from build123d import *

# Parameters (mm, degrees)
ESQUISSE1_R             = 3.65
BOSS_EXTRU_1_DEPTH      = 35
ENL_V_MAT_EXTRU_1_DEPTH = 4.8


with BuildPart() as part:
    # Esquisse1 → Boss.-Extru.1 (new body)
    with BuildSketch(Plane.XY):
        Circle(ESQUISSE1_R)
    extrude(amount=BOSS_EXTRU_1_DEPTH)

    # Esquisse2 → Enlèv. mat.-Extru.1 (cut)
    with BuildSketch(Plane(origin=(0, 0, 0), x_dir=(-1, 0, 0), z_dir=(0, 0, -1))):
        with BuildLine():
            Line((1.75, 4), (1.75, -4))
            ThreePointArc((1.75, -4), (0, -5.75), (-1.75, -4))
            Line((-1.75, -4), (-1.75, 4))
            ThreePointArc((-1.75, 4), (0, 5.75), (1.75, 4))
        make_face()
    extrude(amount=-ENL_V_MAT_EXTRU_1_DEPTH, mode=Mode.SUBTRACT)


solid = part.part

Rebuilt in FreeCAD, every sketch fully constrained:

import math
import FreeCAD as App
import Part
import Sketcher
from FreeCAD import Vector

doc = App.newDocument("Part")
body = doc.addObject("PartDesign::Body", "Body")

# Sketch on XY plane
sketch1 = body.newObject("Sketcher::SketchObject", "Sketch")
sketch1.AttachmentSupport = (doc.getObject("XY_Plane"), [""])
sketch1.MapMode = "FlatFace"
sketch1.addGeometry(Part.Circle(Vector(0, 0, 0), Vector(0, 0, 1), 3.6), False)
sketch1.addConstraint([
    Sketcher.Constraint("Coincident", 0, 3, -1, 1),
    Sketcher.Constraint("Diameter", 0, 7.3),
])
pad1 = body.newObject("PartDesign::Pad", "Pad")
pad1.Profile = sketch1
pad1.Length = 35

# Sketch on XY plane
sketch2 = body.newObject("Sketcher::SketchObject", "Sketch001")
sketch2.AttachmentSupport = (doc.getObject("XY_Plane"), [""])
sketch2.MapMode = "FlatFace"
sketch2.addGeometry([
    Part.LineSegment(Vector(-1.8, -4, 0), Vector(-1.8, 4, 0)),
    Part.ArcOfCircle(Part.Circle(Vector(0, 4, 0), Vector(0, 0, 1), 1.8), math.radians(0), math.radians(180)),
    Part.LineSegment(Vector(1.8, 4, 0), Vector(1.8, -4, 0)),
    Part.ArcOfCircle(Part.Circle(Vector(0, -4, 0), Vector(0, 0, 1), 1.8), math.radians(180), math.radians(360)),
], False)
sketch2.addConstraint([
    Sketcher.Constraint("Tangent", 0, 2, 1, 2),
    Sketcher.Constraint("Tangent", 1, 1, 2, 1),
    Sketcher.Constraint("Tangent", 2, 2, 3, 2),
    Sketcher.Constraint("Tangent", 3, 1, 0, 1),
    Sketcher.Constraint("Vertical", 0),
    Sketcher.Constraint("Vertical", 2),
    Sketcher.Constraint("Symmetric", 1, 3, 3, 3, -1, 1),
    Sketcher.Constraint("DistanceY", 0, 1, 0, 2, 8.0),
    Sketcher.Constraint("Radius", 1, 1.75),
])
pocket1 = body.newObject("PartDesign::Pocket", "Pocket")
pocket1.Profile = sketch2
pocket1.Length = 4.8
pocket1.Reversed = True

doc.recompute()
